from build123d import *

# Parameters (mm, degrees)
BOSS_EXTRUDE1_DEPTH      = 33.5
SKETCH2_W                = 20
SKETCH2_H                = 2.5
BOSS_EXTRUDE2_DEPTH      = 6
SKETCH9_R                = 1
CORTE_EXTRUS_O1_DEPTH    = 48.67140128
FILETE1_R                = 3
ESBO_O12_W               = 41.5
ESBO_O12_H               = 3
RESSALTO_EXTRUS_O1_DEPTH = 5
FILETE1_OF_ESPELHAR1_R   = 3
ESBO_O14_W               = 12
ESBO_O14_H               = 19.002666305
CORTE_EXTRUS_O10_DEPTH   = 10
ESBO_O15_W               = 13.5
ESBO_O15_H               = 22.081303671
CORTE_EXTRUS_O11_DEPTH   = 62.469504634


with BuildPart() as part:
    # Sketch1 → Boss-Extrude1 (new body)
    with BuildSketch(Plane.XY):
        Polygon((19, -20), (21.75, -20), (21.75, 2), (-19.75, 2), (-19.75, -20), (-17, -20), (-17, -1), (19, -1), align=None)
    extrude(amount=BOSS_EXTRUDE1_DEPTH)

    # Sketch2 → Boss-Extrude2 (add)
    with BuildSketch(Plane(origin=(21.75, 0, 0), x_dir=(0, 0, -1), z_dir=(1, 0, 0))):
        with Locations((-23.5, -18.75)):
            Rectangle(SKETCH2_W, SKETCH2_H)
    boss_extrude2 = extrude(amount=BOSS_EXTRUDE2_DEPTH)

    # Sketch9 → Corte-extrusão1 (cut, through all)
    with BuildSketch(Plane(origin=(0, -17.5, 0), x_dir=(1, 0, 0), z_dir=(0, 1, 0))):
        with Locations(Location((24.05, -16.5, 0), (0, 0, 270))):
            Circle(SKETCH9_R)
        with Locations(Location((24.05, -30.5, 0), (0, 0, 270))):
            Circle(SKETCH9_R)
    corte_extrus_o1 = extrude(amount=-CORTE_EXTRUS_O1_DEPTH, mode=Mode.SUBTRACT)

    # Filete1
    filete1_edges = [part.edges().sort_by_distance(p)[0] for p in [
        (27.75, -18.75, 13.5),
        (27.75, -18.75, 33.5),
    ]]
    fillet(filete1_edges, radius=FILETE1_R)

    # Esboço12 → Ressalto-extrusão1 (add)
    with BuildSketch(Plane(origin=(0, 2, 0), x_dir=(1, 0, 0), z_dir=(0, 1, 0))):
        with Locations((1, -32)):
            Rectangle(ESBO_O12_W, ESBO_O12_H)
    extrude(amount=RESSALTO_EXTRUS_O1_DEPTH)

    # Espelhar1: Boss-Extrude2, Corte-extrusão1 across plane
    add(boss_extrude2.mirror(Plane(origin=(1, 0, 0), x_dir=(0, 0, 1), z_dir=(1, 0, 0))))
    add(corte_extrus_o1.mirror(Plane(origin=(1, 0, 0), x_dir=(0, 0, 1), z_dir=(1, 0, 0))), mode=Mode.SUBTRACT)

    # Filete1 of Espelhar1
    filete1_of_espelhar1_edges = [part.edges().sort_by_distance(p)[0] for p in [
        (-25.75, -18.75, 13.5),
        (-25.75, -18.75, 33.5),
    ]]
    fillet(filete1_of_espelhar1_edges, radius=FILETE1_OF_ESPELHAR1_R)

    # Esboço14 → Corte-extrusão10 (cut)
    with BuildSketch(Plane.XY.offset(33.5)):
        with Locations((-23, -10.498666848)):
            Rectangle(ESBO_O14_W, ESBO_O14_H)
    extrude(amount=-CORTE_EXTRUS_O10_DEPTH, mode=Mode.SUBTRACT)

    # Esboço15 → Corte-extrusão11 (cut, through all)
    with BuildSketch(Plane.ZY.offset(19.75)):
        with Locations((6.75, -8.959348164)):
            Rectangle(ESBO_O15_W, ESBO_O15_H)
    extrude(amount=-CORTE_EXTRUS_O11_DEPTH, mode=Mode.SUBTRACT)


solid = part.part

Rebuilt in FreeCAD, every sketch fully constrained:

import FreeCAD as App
import Part
import Sketcher
from FreeCAD import Vector


def edges_at(feature, points):
    """Names of the edges that pass closest to the given points."""
    edges = feature.Shape.Edges
    near = lambda p: min(range(len(edges)), key=lambda i: edges[i].distToShape(Part.Vertex(*p))[0])
    return sorted({f"Edge{near(p) + 1}" for p in points})


def add_polygon(sketch, points):
    """Adds a closed chain of lines whose ends are joined by coincident constraints."""
    first, n = sketch.GeometryCount, len(points)
    for a, b in zip(points, points[1:] + points[:1]):
        sketch.addGeometry(Part.LineSegment(App.Vector(*a, 0), App.Vector(*b, 0)), False)
    for i in range(n):
        sketch.addConstraint(Sketcher.Constraint("Coincident", first + i, 2, first + (i + 1) % n, 1))

doc = App.newDocument("Part")
body = doc.addObject("PartDesign::Body", "Body")

sketch1 = body.newObject("Sketcher::SketchObject", "Sketch")
sketch1.AttachmentSupport = (doc.getObject("XY_Plane"), [""])
sketch1.MapMode = "FlatFace"
add_polygon(sketch1, [(19, -20), (21.8, -20), (21.8, 2), (-19.8, 2), (-19.8, -20), (-17, -20), (-17, -1), (19, -1)])
sketch1.addConstraint([
    Sketcher.Constraint("Horizontal", 0),
    Sketcher.Constraint("Vertical", 1),
    Sketcher.Constraint("Horizontal", 2),
    Sketcher.Constraint("Vertical", 3),
    Sketcher.Constraint("Horizontal", 4),
    Sketcher.Constraint("Vertical", 5),
    Sketcher.Constraint("Horizontal", 6),
    Sketcher.Constraint("Vertical", 7),
    Sketcher.Constraint("Horizontal", 0, 2, 3, 2),
    Sketcher.Constraint("Equal", 0, 4),
    Sketcher.Constraint("DistanceX", 6, 1, 6, 2, 36.0),
    Sketcher.Constraint("DistanceY", 1, 1, 1, 2, 22.0),
    Sketcher.Constraint("DistanceY", 5, 1, 5, 2, 19.0),
    Sketcher.Constraint("DistanceX", 2, 2, 2, 1, 41.5),
    Sketcher.Constraint("DistanceY", 0, 2, -1, 1, 20.0),
    Sketcher.Constraint("DistanceX", 4, 2, -1, 1, 17.0),
])
pad1 = body.newObject("PartDesign::Pad", "Pad")
pad1.Profile = sketch1
pad1.Length = 33.5

sketch2 = body.newObject("Sketcher::SketchObject", "Sketch001")
sketch2.AttachmentSupport = (doc.getObject("YZ_Plane"), [""])
sketch2.MapMode = "FlatFace"
sketch2.AttachmentOffset = App.Placement(Vector(0, 0, 21.75), App.Rotation())
add_polygon(sketch2, [(-17.5, 33.5), (-20, 33.5), (-20, 13.5), (-17.5, 13.5)])
sketch2.addConstraint([
    Sketcher.Constraint("Horizontal", 0),
    Sketcher.Constraint("Vertical", 1),
    Sketcher.Constraint("Horizontal", 2),
    Sketcher.Constraint("Vertical", 3),
    Sketcher.Constraint("DistanceY", 1, 2, 1, 1, 20.0),
    Sketcher.Constraint("DistanceX", 0, 2, 0, 1, 2.5),
    Sketcher.Constraint("DistanceX", 0, 2, -1, 1, 20.0),
    Sketcher.Constraint("DistanceY", -1, 1, 0, 2, 33.5),
])
pad2 = body.newObject("PartDesign::Pad", "Pad001")
pad2.Profile = sketch2
pad2.Length = 6

sketch3 = body.newObject("Sketcher::SketchObject", "Sketch002")
sketch3.AttachmentSupport = (doc.getObject("XZ_Plane"), [""])
sketch3.MapMode = "FlatFace"
sketch3.AttachmentOffset = App.Placement(Vector(0, 0, 17.5), App.Rotation())
sketch3.addGeometry([
    Part.Circle(Vector(24.1, 16.5, 0), Vector(0, 0, 1), 1),
    Part.Circle(Vector(24.1, 30.5, 0), Vector(0, 0, 1), 1),
], False)
sketch3.addConstraint([
    Sketcher.Constraint("Equal", 0, 1),
    Sketcher.Constraint("Vertical", 0, 3, 1, 3),
    Sketcher.Constraint("Diameter", 0, 2.0),
    Sketcher.Constraint("DistanceY", 0, 3, 1, 3, 14.0),
    Sketcher.Constraint("DistanceY", -1, 1, 0, 3, 16.5),
    Sketcher.Constraint("DistanceX", -1, 1, 0, 3, 24.05),
])
pocket1 = body.newObject("PartDesign::Pocket", "Pocket")
pocket1.Profile = sketch3
pocket1.Type = "ThroughAll"
pocket1.Reversed = True
doc.recompute()

fillet = body.newObject("PartDesign::Fillet", "Fillet")
fillet.Base = (pocket1, edges_at(pocket1, [(27.75, -18.75, 13.5), (27.75, -18.75, 33.5)]))
fillet.Radius = 3

sketch4 = body.newObject("Sketcher::SketchObject", "Sketch003")
sketch4.AttachmentSupport = (doc.getObject("XZ_Plane"), [""])
sketch4.MapMode = "FlatFace"
sketch4.AttachmentOffset = App.Placement(Vector(0, 0, -2), App.Rotation())
add_polygon(sketch4, [(-19.8, 30.5), (-19.8, 33.5), (21.8, 33.5), (21.8, 30.5)])
sketch4.addConstraint([
    Sketcher.Constraint("Vertical", 0),
    Sketcher.Constraint("Horizontal", 1),
    Sketcher.Constraint("Vertical", 2),
    Sketcher.Constraint("Horizontal", 3),
    Sketcher.Constraint("DistanceY", 0, 1, 0, 2, 3.0),
    Sketcher.Constraint("DistanceX", 1, 1, 1, 2, 41.5),
    Sketcher.Constraint("DistanceY", -1, 1, 0, 2, 33.5),
    Sketcher.Constraint("DistanceX", 0, 2, -1, 1, 19.75),
])
pad3 = body.newObject("PartDesign::Pad", "Pad002")
pad3.Profile = sketch4
pad3.Length = 5
pad3.Reversed = True
doc.recompute()

datumplane = body.newObject("PartDesign::Plane", "DatumPlane")
datumplane.AttachmentSupport = (doc.getObject("YZ_Plane"), [""])
datumplane.MapMode = "FlatFace"
datumplane.AttachmentOffset = App.Placement(Vector(0, 0, 1), App.Rotation())
mirrored = body.newObject("PartDesign::Mirrored", "Mirrored")
mirrored.Originals = [pad2, pocket1]
mirrored.MirrorPlane = (datumplane, [""])
body.Tip = mirrored
doc.recompute()

fillet2 = body.newObject("PartDesign::Fillet", "Fillet001")
fillet2.Base = (mirrored, edges_at(mirrored, [(-25.75, -18.75, 13.5), (-25.75, -18.75, 33.5)]))
fillet2.Radius = 3

sketch5 = body.newObject("Sketcher::SketchObject", "Sketch004")
sketch5.AttachmentSupport = (doc.getObject("XY_Plane"), [""])
sketch5.MapMode = "FlatFace"
sketch5.AttachmentOffset = App.Placement(Vector(0, 0, 33.5), App.Rotation())
add_polygon(sketch5, [(-29, -1), (-29, -20), (-17, -20), (-17, -1)])
sketch5.addConstraint([
    Sketcher.Constraint("Vertical", 0),
    Sketcher.Constraint("Horizontal", 1),
    Sketcher.Constraint("Vertical", 2),
    Sketcher.Constraint("Horizontal", 3),
    Sketcher.Constraint("DistanceX", 1, 1, 1, 2, 12.0),
    Sketcher.Constraint("DistanceX", 0, 2, -1, 1, 29.0),
    Sketcher.Constraint("DistanceY", 0, 2, -1, 1, 20.0),
    Sketcher.Constraint("DistanceY", 0, 2, 0, 1, 19.002666),
])
pocket2 = body.newObject("PartDesign::Pocket", "Pocket001")
pocket2.Profile = sketch5
pocket2.Length = 10

sketch6 = body.newObject("Sketcher::SketchObject", "Sketch005")
sketch6.AttachmentSupport = (doc.getObject("YZ_Plane"), [""])
sketch6.MapMode = "FlatFace"
sketch6.AttachmentOffset = App.Placement(Vector(0, 0, -19.75), App.Rotation())
add_polygon(sketch6, [(2, 0), (-20, 0), (-20, 14), (2, 14)])
sketch6.addConstraint([
    Sketcher.Constraint("Horizontal", 0),
    Sketcher.Constraint("Vertical", 1),
    Sketcher.Constraint("Horizontal", 2),
    Sketcher.Constraint("Vertical", 3),
    Sketcher.Constraint("PointOnObject", 0, 2, -1),
    Sketcher.Constraint("DistanceY", 1, 1, 1, 2, 13.5),
    Sketcher.Constraint("DistanceX", 0, 2, -1, 1, 20.0),
    Sketcher.Constraint("DistanceX", 0, 2, 0, 1, 22.081304),
])
pocket3 = body.newObject("PartDesign::Pocket", "Pocket002")
pocket3.Profile = sketch6
pocket3.Type = "ThroughAll"
pocket3.Reversed = True

doc.recompute()
